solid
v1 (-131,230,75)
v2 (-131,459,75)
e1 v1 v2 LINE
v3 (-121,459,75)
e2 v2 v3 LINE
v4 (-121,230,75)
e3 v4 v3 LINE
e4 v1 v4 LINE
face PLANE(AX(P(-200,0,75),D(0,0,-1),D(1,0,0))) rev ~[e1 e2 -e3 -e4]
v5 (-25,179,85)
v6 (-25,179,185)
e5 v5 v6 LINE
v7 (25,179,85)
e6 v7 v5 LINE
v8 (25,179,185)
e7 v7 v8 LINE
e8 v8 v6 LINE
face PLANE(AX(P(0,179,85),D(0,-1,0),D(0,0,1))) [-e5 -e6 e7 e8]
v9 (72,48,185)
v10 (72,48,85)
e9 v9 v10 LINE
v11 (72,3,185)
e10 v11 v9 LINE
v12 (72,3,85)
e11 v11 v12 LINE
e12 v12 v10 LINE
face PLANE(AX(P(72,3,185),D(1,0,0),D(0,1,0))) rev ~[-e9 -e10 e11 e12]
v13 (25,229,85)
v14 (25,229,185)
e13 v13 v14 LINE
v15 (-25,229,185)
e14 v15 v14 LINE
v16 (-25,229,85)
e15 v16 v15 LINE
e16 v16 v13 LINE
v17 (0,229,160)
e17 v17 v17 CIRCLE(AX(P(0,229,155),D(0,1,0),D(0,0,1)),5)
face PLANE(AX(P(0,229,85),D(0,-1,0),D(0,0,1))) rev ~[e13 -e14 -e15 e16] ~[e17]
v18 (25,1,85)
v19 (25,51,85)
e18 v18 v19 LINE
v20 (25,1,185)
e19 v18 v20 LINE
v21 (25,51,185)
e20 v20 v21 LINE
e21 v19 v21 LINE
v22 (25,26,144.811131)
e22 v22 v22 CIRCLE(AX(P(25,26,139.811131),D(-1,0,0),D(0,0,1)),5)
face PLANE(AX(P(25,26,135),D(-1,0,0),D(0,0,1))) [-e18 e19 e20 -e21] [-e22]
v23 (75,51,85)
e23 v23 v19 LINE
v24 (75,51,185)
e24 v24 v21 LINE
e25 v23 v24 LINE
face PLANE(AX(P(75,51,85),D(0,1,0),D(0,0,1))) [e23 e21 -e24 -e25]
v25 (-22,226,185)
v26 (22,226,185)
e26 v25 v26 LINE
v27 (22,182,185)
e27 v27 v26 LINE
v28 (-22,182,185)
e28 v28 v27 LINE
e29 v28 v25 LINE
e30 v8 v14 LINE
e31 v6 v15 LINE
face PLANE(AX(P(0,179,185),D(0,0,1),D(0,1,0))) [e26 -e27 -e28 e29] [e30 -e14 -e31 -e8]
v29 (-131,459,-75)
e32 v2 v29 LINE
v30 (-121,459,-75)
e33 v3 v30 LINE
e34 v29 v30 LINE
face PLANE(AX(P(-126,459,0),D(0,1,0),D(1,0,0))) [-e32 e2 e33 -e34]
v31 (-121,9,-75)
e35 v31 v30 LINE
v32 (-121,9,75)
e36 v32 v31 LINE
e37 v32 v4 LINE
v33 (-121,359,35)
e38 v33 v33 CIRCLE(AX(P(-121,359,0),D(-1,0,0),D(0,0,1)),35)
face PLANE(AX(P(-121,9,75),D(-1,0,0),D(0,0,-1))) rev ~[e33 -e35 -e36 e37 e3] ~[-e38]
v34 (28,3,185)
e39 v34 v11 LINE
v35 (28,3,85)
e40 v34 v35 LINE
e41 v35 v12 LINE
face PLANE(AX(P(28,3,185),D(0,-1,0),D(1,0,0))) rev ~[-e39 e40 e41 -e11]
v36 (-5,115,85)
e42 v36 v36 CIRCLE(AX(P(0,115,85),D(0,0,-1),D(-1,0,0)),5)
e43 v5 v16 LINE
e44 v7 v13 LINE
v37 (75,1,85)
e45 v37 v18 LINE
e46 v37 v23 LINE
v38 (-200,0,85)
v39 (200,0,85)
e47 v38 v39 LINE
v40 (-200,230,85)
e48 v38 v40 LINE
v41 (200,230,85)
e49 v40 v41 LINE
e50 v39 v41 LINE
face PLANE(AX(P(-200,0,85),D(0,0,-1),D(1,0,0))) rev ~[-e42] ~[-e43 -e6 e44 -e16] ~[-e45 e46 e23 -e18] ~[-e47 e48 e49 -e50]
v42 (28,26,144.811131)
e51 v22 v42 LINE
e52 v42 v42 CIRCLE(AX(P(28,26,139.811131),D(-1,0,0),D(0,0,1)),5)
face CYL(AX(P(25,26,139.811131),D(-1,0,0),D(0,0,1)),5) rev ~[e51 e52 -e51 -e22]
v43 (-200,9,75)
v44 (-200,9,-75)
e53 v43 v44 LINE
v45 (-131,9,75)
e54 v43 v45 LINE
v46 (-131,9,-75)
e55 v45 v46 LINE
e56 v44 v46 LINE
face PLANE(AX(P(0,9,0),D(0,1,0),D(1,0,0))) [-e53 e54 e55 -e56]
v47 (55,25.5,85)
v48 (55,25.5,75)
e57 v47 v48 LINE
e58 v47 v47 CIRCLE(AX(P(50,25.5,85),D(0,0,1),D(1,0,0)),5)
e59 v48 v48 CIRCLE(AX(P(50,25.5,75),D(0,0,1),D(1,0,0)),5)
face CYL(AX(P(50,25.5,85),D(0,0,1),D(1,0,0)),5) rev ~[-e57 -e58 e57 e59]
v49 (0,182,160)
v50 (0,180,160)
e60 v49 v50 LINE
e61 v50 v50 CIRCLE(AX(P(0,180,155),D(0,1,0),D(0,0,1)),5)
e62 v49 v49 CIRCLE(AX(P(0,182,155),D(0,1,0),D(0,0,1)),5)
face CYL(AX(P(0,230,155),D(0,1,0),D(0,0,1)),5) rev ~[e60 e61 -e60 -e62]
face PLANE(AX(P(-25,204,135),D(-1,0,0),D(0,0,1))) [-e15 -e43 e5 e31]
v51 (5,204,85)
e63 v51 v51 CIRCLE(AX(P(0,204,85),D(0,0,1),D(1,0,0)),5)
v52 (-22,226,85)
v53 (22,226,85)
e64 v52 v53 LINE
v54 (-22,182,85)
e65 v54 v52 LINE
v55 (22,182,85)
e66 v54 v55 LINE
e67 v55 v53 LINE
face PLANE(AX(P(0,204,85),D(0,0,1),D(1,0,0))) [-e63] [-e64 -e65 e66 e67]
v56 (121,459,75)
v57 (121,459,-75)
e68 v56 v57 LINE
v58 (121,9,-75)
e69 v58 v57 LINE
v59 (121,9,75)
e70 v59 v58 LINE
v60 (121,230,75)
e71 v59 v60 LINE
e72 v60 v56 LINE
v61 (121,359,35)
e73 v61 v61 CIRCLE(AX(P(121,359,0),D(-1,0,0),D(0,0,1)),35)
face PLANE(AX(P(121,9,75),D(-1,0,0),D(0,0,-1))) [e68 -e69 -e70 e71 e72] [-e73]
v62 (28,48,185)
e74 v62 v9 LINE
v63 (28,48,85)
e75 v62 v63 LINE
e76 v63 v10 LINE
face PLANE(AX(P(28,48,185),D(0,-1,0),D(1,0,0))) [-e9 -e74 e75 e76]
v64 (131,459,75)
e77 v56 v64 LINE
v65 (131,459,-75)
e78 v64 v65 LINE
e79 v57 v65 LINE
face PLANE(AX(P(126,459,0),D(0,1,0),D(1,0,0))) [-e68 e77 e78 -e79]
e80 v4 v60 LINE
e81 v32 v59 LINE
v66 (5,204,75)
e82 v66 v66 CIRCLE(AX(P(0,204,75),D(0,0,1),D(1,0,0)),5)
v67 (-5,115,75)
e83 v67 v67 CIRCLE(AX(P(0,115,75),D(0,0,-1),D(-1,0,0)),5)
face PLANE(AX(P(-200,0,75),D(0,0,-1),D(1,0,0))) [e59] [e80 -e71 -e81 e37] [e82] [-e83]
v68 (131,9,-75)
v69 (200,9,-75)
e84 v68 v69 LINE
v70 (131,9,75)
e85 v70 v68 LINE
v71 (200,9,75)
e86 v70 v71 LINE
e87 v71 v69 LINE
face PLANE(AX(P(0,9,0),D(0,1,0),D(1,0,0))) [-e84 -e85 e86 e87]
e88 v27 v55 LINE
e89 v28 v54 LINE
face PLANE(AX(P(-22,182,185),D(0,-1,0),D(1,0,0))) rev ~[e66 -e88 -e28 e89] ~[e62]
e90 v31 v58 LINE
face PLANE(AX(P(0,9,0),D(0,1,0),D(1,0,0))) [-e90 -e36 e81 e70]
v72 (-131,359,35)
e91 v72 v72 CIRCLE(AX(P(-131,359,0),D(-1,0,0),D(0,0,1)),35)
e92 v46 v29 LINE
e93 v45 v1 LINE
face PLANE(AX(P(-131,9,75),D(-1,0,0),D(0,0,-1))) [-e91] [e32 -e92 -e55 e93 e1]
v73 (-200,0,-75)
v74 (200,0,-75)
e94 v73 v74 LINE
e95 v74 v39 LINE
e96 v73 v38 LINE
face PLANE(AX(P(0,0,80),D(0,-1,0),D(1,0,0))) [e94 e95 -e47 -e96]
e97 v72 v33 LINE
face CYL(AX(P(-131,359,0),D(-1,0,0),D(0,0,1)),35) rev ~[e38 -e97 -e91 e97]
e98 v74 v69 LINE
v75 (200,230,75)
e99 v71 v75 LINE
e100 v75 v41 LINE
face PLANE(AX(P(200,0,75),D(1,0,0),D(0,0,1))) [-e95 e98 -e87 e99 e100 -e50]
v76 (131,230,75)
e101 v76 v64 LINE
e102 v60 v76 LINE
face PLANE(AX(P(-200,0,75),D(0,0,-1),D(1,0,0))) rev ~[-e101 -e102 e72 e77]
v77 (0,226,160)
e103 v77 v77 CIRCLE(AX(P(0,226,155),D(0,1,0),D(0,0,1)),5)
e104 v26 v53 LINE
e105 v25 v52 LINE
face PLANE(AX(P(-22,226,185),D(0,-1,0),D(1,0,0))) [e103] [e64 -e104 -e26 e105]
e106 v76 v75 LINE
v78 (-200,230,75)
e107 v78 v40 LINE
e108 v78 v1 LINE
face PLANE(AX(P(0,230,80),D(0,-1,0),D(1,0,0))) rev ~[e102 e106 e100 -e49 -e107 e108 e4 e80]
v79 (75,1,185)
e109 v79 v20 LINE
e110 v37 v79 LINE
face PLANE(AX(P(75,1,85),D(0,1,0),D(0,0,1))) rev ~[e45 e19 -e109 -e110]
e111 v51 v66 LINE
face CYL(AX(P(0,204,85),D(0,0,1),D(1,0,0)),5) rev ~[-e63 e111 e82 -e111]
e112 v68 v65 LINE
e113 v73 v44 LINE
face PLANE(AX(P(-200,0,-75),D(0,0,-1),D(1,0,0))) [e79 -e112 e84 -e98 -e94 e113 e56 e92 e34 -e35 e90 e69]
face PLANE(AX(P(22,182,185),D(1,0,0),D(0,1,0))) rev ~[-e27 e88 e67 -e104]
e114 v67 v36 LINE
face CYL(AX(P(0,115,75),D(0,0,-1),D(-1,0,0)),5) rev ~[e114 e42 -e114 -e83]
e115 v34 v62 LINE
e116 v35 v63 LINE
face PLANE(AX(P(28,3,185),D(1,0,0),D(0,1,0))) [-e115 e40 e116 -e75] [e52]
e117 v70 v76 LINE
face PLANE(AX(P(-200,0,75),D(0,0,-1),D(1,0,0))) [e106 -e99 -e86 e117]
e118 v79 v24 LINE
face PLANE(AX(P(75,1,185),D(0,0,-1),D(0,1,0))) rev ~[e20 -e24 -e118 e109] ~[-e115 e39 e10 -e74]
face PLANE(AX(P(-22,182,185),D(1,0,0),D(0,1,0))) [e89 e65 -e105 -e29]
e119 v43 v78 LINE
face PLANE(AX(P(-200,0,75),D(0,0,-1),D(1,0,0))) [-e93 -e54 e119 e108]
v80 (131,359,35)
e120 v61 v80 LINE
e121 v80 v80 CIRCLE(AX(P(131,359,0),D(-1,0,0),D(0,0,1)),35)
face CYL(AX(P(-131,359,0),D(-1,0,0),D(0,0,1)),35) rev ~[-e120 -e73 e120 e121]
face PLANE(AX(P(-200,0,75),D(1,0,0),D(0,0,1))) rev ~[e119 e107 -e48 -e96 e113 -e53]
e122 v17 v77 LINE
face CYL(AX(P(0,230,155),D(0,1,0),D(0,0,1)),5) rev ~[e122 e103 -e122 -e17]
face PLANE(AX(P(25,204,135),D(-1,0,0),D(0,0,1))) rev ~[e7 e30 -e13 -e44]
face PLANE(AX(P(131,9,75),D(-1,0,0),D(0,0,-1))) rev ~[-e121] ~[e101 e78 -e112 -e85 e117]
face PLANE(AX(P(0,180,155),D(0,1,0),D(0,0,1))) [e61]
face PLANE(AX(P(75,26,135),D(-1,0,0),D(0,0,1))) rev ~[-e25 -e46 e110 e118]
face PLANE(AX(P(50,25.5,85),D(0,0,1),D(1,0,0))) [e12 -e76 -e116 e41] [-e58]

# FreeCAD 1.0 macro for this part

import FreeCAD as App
import Part
import Sketcher
Q = App.Units.Quantity

doc = App.newDocument("Part")
body = doc.addObject("PartDesign::Body", "Body")

# Sketch on XZ plane
sketch1 = body.newObject("Sketcher::SketchObject", "Sketch")
sketch1.AttachmentSupport = (doc.getObject("XZ_Plane"), [""])
sketch1.MapMode = "FlatFace"
sketch1.addGeometry([
    Part.LineSegment(App.Vector(-200, -75, 0), App.Vector(-200, 75, 0)),
    Part.LineSegment(App.Vector(-200, 75, 0), App.Vector(200, 75, 0)),
    Part.LineSegment(App.Vector(200, 75, 0), App.Vector(200, -75, 0)),
    Part.LineSegment(App.Vector(200, -75, 0), App.Vector(-200, -75, 0)),
], False)
sketch1.addConstraint([
    Sketcher.Constraint("Coincident", 0, 2, 1, 1),
    Sketcher.Constraint("Coincident", 1, 2, 2, 1),
    Sketcher.Constraint("Coincident", 2, 2, 3, 1),
    Sketcher.Constraint("Coincident", 3, 2, 0, 1),
    Sketcher.Constraint("Vertical", 0),
    Sketcher.Constraint("Horizontal", 1),
    Sketcher.Constraint("Vertical", 2),
    Sketcher.Constraint("Horizontal", 3),
    Sketcher.Constraint("Symmetric", 0, 2, 2, 2, -1, 1),
    Sketcher.Constraint("DistanceX", 1, 1, 1, 2, Q("400 mm")),
    Sketcher.Constraint("DistanceY", 0, 1, 0, 2, Q("150 mm")),
])
pad1 = body.newObject("PartDesign::Pad", "Pad")
pad1.Profile = sketch1
pad1.Length = 9
pad1.Reversed = True

# Sketch on XZ plane
sketch2 = body.newObject("Sketcher::SketchObject", "Sketch001")
sketch2.AttachmentSupport = (doc.getObject("XZ_Plane"), [""])
sketch2.MapMode = "FlatFace"
sketch2.AttachmentOffset = App.Placement(App.Vector(0, 0, -9), App.Rotation())
sketch2.addGeometry([
    Part.LineSegment(App.Vector(-131, -75, 0), App.Vector(-131, 75, 0)),  # 0
    Part.LineSegment(App.Vector(-131, 75, 0), App.Vector(-121, 75, 0)),  # 1
    Part.LineSegment(App.Vector(-121, 75, 0), App.Vector(-121, -75, 0)),  # 2
    Part.LineSegment(App.Vector(-121, -75, 0), App.Vector(-131, -75, 0)),  # 3
    Part.LineSegment(App.Vector(121, -75, 0), App.Vector(121, 75, 0)),  # 4
    Part.LineSegment(App.Vector(121, 75, 0), App.Vector(131, 75, 0)),  # 5
    Part.LineSegment(App.Vector(131, 75, 0), App.Vector(131, -75, 0)),  # 6
    Part.LineSegment(App.Vector(131, -75, 0), App.Vector(121, -75, 0)),  # 7
], False)
sketch2.addConstraint([
    Sketcher.Constraint("Coincident", 0, 2, 1, 1),
    Sketcher.Constraint("Coincident", 1, 2, 2, 1),
    Sketcher.Constraint("Coincident", 2, 2, 3, 1),
    Sketcher.Constraint("Coincident", 3, 2, 0, 1),
    Sketcher.Constraint("Coincident", 4, 2, 5, 1),
    Sketcher.Constraint("Coincident", 5, 2, 6, 1),
    Sketcher.Constraint("Coincident", 6, 2, 7, 1),
    Sketcher.Constraint("Coincident", 7, 2, 4, 1),
    Sketcher.Constraint("Vertical", 0),
    Sketcher.Constraint("Horizontal", 1),
    Sketcher.Constraint("Vertical", 2),
    Sketcher.Constraint("Horizontal", 3),
    Sketcher.Constraint("Vertical", 4),
    Sketcher.Constraint("Horizontal", 5),
    Sketcher.Constraint("Vertical", 6),
    Sketcher.Constraint("Horizontal", 7),
    Sketcher.Constraint("Symmetric", 2, 2, 4, 2, -1, 1),
    Sketcher.Constraint("Symmetric", 0, 2, 6, 2, -1, 1),
    Sketcher.Constraint("Horizontal", 1, 2, 4, 2),
    Sketcher.Constraint("DistanceX", 1, 1, 1, 2, Q("10 mm")),
    Sketcher.Constraint("DistanceY", 0, 1, 0, 2, Q("150 mm")),
    Sketcher.Constraint("DistanceX", 0, 2, -1, 1, Q("131 mm")),
])
pad2 = body.newObject("PartDesign::Pad", "Pad001")
pad2.Profile = sketch2
pad2.Length = 450
pad2.Reversed = True

# Sketch on YZ plane
sketch3 = body.newObject("Sketcher::SketchObject", "Sketch002")
sketch3.AttachmentSupport = (doc.getObject("YZ_Plane"), [""])
sketch3.MapMode = "FlatFace"
sketch3.AttachmentOffset = App.Placement(App.Vector(0, 0, -131), App.Rotation())
sketch3.addGeometry(Part.Circle(App.Vector(359, 0, 0), App.Vector(0, 0, 1), 35), False)
sketch3.addConstraint([
    Sketcher.Constraint("PointOnObject", 0, 3, -1),
    Sketcher.Constraint("Diameter", 0, Q("70 mm")),
    Sketcher.Constraint("DistanceX", -1, 1, 0, 3, Q("359 mm")),
])
pocket1 = body.newObject("PartDesign::Pocket", "Pocket")
pocket1.Profile = sketch3
pocket1.Length = 300
pocket1.Reversed = True

# Sketch on XZ plane
sketch4 = body.newObject("Sketcher::SketchObject", "Sketch003")
sketch4.AttachmentSupport = (doc.getObject("XZ_Plane"), [""])
sketch4.MapMode = "FlatFace"
sketch4.addGeometry([
    Part.LineSegment(App.Vector(-200, 85, 0), App.Vector(-200, 75, 0)),
    Part.LineSegment(App.Vector(-200, 75, 0), App.Vector(200, 75, 0)),
    Part.LineSegment(App.Vector(200, 75, 0), App.Vector(200, 85, 0)),
    Part.LineSegment(App.Vector(200, 85, 0), App.Vector(-200, 85, 0)),
], False)
sketch4.addConstraint([
    Sketcher.Constraint("Coincident", 0, 2, 1, 1),
    Sketcher.Constraint("Coincident", 1, 2, 2, 1),
    Sketcher.Constraint("Coincident", 2, 2, 3, 1),
    Sketcher.Constraint("Coincident", 3, 2, 0, 1),
    Sketcher.Constraint("Vertical", 0),
    Sketcher.Constraint("Horizontal", 1),
    Sketcher.Constraint("Vertical", 2),
    Sketcher.Constraint("Horizontal", 3),
    Sketcher.Constraint("DistanceX", 1, 1, 1, 2, Q("400 mm")),
    Sketcher.Constraint("DistanceY", 0, 2, 0, 1, Q("10 mm")),
    Sketcher.Constraint("DistanceX", 0, 2, -1, 1, Q("200 mm")),
    Sketcher.Constraint("DistanceY", -1, 1, 0, 2, Q("75 mm")),
])
pad3 = body.newObject("PartDesign::Pad", "Pad002")
pad3.Profile = sketch4
pad3.Length = 230
pad3.Reversed = True

# Sketch on YZ plane
sketch5 = body.newObject("Sketcher::SketchObject", "Sketch004")
sketch5.AttachmentSupport = (doc.getObject("YZ_Plane"), [""])
sketch5.MapMode = "FlatFace"
sketch5.addGeometry([
    Part.LineSegment(App.Vector(229, 85, 0), App.Vector(179, 85, 0)),
    Part.LineSegment(App.Vector(179, 85, 0), App.Vector(179, 185, 0)),
    Part.LineSegment(App.Vector(179, 185, 0), App.Vector(229, 185, 0)),
    Part.LineSegment(App.Vector(229, 185, 0), App.Vector(229, 85, 0)),
], False)
sketch5.addConstraint([
    Sketcher.Constraint("Coincident", 0, 2, 1, 1),
    Sketcher.Constraint("Coincident", 1, 2, 2, 1),
    Sketcher.Constraint("Coincident", 2, 2, 3, 1),
    Sketcher.Constraint("Coincident", 3, 2, 0, 1),
    Sketcher.Constraint("Horizontal", 0),
    Sketcher.Constraint("Vertical", 1),
    Sketcher.Constraint("Horizontal", 2),
    Sketcher.Constraint("Vertical", 3),
    Sketcher.Constraint("DistanceX", 0, 2, 0, 1, Q("50 mm")),
    Sketcher.Constraint("DistanceY", 1, 1, 1, 2, Q("100 mm")),
    Sketcher.Constraint("DistanceX", -1, 1, 0, 2, Q("179 mm")),
    Sketcher.Constraint("DistanceY", -1, 1, 0, 2, Q("85 mm")),
])
pad4 = body.newObject("PartDesign::Pad", "Pad003")
pad4.Profile = sketch5
pad4.Length = 50
pad4.Midplane = True

# Sketch on XZ plane
sketch6 = body.newObject("Sketcher::SketchObject", "Sketch005")
sketch6.AttachmentSupport = (doc.getObject("XZ_Plane"), [""])
sketch6.MapMode = "FlatFace"
sketch6.AttachmentOffset = App.Placement(App.Vector(0, 0, -230), App.Rotation())
sketch6.addGeometry(Part.Circle(App.Vector(0, 155, 0), App.Vector(0, 0, 1), 5), False)
sketch6.addConstraint([
    Sketcher.Constraint("PointOnObject", 0, 3, -2),
    Sketcher.Constraint("Diameter", 0, Q("10 mm")),
    Sketcher.Constraint("DistanceY", -1, 1, 0, 3, Q("155 mm")),
])
pocket2 = body.newObject("PartDesign::Pocket", "Pocket001")
pocket2.Profile = sketch6
pocket2.Length = 50
pocket2.Reversed = True

# Sketch on XY plane
sketch7 = body.newObject("Sketcher::SketchObject", "Sketch006")
sketch7.AttachmentSupport = (doc.getObject("XY_Plane"), [""])
sketch7.MapMode = "FlatFace"
sketch7.AttachmentOffset = App.Placement(App.Vector(0, 0, 75), App.Rotation())
sketch7.addGeometry(Part.Circle(App.Vector(0, 115, 0), App.Vector(0, 0, 1), 5), False)
sketch7.addConstraint([
    Sketcher.Constraint("PointOnObject", 0, 3, -2),
    Sketcher.Constraint("Diameter", 0, Q("10 mm")),
    Sketcher.Constraint("DistanceY", -1, 1, 0, 3, Q("115 mm")),
])
pocket3 = body.newObject("PartDesign::Pocket", "Pocket002")
pocket3.Profile = sketch7
pocket3.Length = 150
pocket3.Reversed = True

# Sketch on YZ plane
sketch8 = body.newObject("Sketcher::SketchObject", "Sketch007")
sketch8.AttachmentSupport = (doc.getObject("YZ_Plane"), [""])
sketch8.MapMode = "FlatFace"
sketch8.AttachmentOffset = App.Placement(App.Vector(0, 0, 75), App.Rotation())
sketch8.addGeometry([
    Part.LineSegment(App.Vector(51, 85, 0), App.Vector(1, 85, 0)),
    Part.LineSegment(App.Vector(1, 85, 0), App.Vector(1, 185, 0)),
    Part.LineSegment(App.Vector(1, 185, 0), App.Vector(51, 185, 0)),
    Part.LineSegment(App.Vector(51, 185, 0), App.Vector(51, 85, 0)),
], False)
sketch8.addConstraint([
    Sketcher.Constraint("Coincident", 0, 2, 1, 1),
    Sketcher.Constraint("Coincident", 1, 2, 2, 1),
    Sketcher.Constraint("Coincident", 2, 2, 3, 1),
    Sketcher.Constraint("Coincident", 3, 2, 0, 1),
    Sketcher.Constraint("Horizontal", 0),
    Sketcher.Constraint("Vertical", 1),
    Sketcher.Constraint("Horizontal", 2),
    Sketcher.Constraint("Vertical", 3),
    Sketcher.Constraint("DistanceX", 0, 2, 0, 1, Q("50 mm")),
    Sketcher.Constraint("DistanceY", 1, 1, 1, 2, Q("100 mm")),
    Sketcher.Constraint("DistanceX", -1, 1, 0, 2, Q("1 mm")),
    Sketcher.Constraint("DistanceY", -1, 1, 0, 2, Q("85 mm")),
])
pad5 = body.newObject("PartDesign::Pad", "Pad004")
pad5.Profile = sketch8
pad5.Length = 50
pad5.Reversed = True

# Sketch on YZ plane
sketch9 = body.newObject("Sketcher::SketchObject", "Sketch008")
sketch9.AttachmentSupport = (doc.getObject("YZ_Plane"), [""])
sketch9.MapMode = "FlatFace"
sketch9.AttachmentOffset = App.Placement(App.Vector(0, 0, 25), App.Rotation())
sketch9.addGeometry(Part.Circle(App.Vector(26, 140, 0), App.Vector(0, 0, 1), 5), False)
sketch9.addConstraint([
    Sketcher.Constraint("Diameter", 0, Q("10 mm")),
    Sketcher.Constraint("DistanceX", -1, 1, 0, 3, Q("26 mm")),
    Sketcher.Constraint("DistanceY", -1, 1, 0, 3, Q("139.811131 mm")),
])
pocket4 = body.newObject("PartDesign::Pocket", "Pocket003")
pocket4.Profile = sketch9
pocket4.Length = 30
pocket4.Reversed = True

# Sketch on XY plane
sketch10 = body.newObject("Sketcher::SketchObject", "Sketch009")
sketch10.AttachmentSupport = (doc.getObject("XY_Plane"), [""])
sketch10.MapMode = "FlatFace"
sketch10.AttachmentOffset = App.Placement(App.Vector(0, 0, 185), App.Rotation())
sketch10.addGeometry([
    Part.LineSegment(App.Vector(28, 48, 0), App.Vector(28, 3, 0)),  # 0
    Part.LineSegment(App.Vector(28, 3, 0), App.Vector(72, 3, 0)),  # 1
    Part.LineSegment(App.Vector(72, 3, 0), App.Vector(72, 48, 0)),  # 2
    Part.LineSegment(App.Vector(72, 48, 0), App.Vector(28, 48, 0)),  # 3
    Part.LineSegment(App.Vector(-22, 226, 0), App.Vector(-22, 182, 0)),  # 4
    Part.LineSegment(App.Vector(-22, 182, 0), App.Vector(22, 182, 0)),  # 5
    Part.LineSegment(App.Vector(22, 182, 0), App.Vector(22, 226, 0)),  # 6
    Part.LineSegment(App.Vector(22, 226, 0), App.Vector(-22, 226, 0)),  # 7
], False)
sketch10.addConstraint([
    Sketcher.Constraint("Coincident", 0, 2, 1, 1),
    Sketcher.Constraint("Coincident", 1, 2, 2, 1),
    Sketcher.Constraint("Coincident", 2, 2, 3, 1),
    Sketcher.Constraint("Coincident", 3, 2, 0, 1),
    Sketcher.Constraint("Coincident", 4, 2, 5, 1),
    Sketcher.Constraint("Coincident", 5, 2, 6, 1),
    Sketcher.Constraint("Coincident", 6, 2, 7, 1),
    Sketcher.Constraint("Coincident", 7, 2, 4, 1),
    Sketcher.Constraint("Vertical", 0),
    Sketcher.Constraint("Horizontal", 1),
    Sketcher.Constraint("Vertical", 2),
    Sketcher.Constraint("Horizontal", 3),
    Sketcher.Constraint("Vertical", 4),
    Sketcher.Constraint("Horizontal", 5),
    Sketcher.Constraint("Vertical", 6),
    Sketcher.Constraint("Horizontal", 7),
    Sketcher.Constraint("Equal", 3, 5),
    Sketcher.Constraint("Equal", 7, 4),
    Sketcher.Constraint("DistanceX", 1, 1, 1, 2, Q("44 mm")),
    Sketcher.Constraint("DistanceY", 0, 2, 0, 1, Q("45 mm")),
    Sketcher.Constraint("DistanceX", -1, 1, 0, 2, Q("28 mm")),
    Sketcher.Constraint("DistanceY", -1, 1, 0, 2, Q("3 mm")),
    Sketcher.Constraint("DistanceX", 4, 2, -1, 1, Q("22 mm")),
    Sketcher.Constraint("DistanceY", -1, 1, 4, 2, Q("182 mm")),
])
pocket5 = body.newObject("PartDesign::Pocket", "Pocket004")
pocket5.Profile = sketch10
pocket5.Length = 100

# Sketch on XY plane
sketch11 = body.newObject("Sketcher::SketchObject", "Sketch010")
sketch11.AttachmentSupport = (doc.getObject("XY_Plane"), [""])
sketch11.MapMode = "FlatFace"
sketch11.AttachmentOffset = App.Placement(App.Vector(0, 0, 85), App.Rotation())
sketch11.addGeometry([
    Part.Circle(App.Vector(0, 204, 0), App.Vector(0, 0, 1), 5),
    Part.Circle(App.Vector(50, 26, 0), App.Vector(0, 0, 1), 5),
], False)
sketch11.addConstraint([
    Sketcher.Constraint("Equal", 0, 1),
    Sketcher.Constraint("PointOnObject", 0, 3, -2),
    Sketcher.Constraint("Diameter", 0, Q("10 mm")),
    Sketcher.Constraint("DistanceY", -1, 1, 0, 3, Q("204 mm")),
    Sketcher.Constraint("DistanceX", -1, 1, 1, 3, Q("50 mm")),
    Sketcher.Constraint("DistanceY", -1, 1, 1, 3, Q("25.5 mm")),
])
pocket6 = body.newObject("PartDesign::Pocket", "Pocket005")
pocket6.Profile = sketch11
pocket6.Length = 10

doc.recompute()
